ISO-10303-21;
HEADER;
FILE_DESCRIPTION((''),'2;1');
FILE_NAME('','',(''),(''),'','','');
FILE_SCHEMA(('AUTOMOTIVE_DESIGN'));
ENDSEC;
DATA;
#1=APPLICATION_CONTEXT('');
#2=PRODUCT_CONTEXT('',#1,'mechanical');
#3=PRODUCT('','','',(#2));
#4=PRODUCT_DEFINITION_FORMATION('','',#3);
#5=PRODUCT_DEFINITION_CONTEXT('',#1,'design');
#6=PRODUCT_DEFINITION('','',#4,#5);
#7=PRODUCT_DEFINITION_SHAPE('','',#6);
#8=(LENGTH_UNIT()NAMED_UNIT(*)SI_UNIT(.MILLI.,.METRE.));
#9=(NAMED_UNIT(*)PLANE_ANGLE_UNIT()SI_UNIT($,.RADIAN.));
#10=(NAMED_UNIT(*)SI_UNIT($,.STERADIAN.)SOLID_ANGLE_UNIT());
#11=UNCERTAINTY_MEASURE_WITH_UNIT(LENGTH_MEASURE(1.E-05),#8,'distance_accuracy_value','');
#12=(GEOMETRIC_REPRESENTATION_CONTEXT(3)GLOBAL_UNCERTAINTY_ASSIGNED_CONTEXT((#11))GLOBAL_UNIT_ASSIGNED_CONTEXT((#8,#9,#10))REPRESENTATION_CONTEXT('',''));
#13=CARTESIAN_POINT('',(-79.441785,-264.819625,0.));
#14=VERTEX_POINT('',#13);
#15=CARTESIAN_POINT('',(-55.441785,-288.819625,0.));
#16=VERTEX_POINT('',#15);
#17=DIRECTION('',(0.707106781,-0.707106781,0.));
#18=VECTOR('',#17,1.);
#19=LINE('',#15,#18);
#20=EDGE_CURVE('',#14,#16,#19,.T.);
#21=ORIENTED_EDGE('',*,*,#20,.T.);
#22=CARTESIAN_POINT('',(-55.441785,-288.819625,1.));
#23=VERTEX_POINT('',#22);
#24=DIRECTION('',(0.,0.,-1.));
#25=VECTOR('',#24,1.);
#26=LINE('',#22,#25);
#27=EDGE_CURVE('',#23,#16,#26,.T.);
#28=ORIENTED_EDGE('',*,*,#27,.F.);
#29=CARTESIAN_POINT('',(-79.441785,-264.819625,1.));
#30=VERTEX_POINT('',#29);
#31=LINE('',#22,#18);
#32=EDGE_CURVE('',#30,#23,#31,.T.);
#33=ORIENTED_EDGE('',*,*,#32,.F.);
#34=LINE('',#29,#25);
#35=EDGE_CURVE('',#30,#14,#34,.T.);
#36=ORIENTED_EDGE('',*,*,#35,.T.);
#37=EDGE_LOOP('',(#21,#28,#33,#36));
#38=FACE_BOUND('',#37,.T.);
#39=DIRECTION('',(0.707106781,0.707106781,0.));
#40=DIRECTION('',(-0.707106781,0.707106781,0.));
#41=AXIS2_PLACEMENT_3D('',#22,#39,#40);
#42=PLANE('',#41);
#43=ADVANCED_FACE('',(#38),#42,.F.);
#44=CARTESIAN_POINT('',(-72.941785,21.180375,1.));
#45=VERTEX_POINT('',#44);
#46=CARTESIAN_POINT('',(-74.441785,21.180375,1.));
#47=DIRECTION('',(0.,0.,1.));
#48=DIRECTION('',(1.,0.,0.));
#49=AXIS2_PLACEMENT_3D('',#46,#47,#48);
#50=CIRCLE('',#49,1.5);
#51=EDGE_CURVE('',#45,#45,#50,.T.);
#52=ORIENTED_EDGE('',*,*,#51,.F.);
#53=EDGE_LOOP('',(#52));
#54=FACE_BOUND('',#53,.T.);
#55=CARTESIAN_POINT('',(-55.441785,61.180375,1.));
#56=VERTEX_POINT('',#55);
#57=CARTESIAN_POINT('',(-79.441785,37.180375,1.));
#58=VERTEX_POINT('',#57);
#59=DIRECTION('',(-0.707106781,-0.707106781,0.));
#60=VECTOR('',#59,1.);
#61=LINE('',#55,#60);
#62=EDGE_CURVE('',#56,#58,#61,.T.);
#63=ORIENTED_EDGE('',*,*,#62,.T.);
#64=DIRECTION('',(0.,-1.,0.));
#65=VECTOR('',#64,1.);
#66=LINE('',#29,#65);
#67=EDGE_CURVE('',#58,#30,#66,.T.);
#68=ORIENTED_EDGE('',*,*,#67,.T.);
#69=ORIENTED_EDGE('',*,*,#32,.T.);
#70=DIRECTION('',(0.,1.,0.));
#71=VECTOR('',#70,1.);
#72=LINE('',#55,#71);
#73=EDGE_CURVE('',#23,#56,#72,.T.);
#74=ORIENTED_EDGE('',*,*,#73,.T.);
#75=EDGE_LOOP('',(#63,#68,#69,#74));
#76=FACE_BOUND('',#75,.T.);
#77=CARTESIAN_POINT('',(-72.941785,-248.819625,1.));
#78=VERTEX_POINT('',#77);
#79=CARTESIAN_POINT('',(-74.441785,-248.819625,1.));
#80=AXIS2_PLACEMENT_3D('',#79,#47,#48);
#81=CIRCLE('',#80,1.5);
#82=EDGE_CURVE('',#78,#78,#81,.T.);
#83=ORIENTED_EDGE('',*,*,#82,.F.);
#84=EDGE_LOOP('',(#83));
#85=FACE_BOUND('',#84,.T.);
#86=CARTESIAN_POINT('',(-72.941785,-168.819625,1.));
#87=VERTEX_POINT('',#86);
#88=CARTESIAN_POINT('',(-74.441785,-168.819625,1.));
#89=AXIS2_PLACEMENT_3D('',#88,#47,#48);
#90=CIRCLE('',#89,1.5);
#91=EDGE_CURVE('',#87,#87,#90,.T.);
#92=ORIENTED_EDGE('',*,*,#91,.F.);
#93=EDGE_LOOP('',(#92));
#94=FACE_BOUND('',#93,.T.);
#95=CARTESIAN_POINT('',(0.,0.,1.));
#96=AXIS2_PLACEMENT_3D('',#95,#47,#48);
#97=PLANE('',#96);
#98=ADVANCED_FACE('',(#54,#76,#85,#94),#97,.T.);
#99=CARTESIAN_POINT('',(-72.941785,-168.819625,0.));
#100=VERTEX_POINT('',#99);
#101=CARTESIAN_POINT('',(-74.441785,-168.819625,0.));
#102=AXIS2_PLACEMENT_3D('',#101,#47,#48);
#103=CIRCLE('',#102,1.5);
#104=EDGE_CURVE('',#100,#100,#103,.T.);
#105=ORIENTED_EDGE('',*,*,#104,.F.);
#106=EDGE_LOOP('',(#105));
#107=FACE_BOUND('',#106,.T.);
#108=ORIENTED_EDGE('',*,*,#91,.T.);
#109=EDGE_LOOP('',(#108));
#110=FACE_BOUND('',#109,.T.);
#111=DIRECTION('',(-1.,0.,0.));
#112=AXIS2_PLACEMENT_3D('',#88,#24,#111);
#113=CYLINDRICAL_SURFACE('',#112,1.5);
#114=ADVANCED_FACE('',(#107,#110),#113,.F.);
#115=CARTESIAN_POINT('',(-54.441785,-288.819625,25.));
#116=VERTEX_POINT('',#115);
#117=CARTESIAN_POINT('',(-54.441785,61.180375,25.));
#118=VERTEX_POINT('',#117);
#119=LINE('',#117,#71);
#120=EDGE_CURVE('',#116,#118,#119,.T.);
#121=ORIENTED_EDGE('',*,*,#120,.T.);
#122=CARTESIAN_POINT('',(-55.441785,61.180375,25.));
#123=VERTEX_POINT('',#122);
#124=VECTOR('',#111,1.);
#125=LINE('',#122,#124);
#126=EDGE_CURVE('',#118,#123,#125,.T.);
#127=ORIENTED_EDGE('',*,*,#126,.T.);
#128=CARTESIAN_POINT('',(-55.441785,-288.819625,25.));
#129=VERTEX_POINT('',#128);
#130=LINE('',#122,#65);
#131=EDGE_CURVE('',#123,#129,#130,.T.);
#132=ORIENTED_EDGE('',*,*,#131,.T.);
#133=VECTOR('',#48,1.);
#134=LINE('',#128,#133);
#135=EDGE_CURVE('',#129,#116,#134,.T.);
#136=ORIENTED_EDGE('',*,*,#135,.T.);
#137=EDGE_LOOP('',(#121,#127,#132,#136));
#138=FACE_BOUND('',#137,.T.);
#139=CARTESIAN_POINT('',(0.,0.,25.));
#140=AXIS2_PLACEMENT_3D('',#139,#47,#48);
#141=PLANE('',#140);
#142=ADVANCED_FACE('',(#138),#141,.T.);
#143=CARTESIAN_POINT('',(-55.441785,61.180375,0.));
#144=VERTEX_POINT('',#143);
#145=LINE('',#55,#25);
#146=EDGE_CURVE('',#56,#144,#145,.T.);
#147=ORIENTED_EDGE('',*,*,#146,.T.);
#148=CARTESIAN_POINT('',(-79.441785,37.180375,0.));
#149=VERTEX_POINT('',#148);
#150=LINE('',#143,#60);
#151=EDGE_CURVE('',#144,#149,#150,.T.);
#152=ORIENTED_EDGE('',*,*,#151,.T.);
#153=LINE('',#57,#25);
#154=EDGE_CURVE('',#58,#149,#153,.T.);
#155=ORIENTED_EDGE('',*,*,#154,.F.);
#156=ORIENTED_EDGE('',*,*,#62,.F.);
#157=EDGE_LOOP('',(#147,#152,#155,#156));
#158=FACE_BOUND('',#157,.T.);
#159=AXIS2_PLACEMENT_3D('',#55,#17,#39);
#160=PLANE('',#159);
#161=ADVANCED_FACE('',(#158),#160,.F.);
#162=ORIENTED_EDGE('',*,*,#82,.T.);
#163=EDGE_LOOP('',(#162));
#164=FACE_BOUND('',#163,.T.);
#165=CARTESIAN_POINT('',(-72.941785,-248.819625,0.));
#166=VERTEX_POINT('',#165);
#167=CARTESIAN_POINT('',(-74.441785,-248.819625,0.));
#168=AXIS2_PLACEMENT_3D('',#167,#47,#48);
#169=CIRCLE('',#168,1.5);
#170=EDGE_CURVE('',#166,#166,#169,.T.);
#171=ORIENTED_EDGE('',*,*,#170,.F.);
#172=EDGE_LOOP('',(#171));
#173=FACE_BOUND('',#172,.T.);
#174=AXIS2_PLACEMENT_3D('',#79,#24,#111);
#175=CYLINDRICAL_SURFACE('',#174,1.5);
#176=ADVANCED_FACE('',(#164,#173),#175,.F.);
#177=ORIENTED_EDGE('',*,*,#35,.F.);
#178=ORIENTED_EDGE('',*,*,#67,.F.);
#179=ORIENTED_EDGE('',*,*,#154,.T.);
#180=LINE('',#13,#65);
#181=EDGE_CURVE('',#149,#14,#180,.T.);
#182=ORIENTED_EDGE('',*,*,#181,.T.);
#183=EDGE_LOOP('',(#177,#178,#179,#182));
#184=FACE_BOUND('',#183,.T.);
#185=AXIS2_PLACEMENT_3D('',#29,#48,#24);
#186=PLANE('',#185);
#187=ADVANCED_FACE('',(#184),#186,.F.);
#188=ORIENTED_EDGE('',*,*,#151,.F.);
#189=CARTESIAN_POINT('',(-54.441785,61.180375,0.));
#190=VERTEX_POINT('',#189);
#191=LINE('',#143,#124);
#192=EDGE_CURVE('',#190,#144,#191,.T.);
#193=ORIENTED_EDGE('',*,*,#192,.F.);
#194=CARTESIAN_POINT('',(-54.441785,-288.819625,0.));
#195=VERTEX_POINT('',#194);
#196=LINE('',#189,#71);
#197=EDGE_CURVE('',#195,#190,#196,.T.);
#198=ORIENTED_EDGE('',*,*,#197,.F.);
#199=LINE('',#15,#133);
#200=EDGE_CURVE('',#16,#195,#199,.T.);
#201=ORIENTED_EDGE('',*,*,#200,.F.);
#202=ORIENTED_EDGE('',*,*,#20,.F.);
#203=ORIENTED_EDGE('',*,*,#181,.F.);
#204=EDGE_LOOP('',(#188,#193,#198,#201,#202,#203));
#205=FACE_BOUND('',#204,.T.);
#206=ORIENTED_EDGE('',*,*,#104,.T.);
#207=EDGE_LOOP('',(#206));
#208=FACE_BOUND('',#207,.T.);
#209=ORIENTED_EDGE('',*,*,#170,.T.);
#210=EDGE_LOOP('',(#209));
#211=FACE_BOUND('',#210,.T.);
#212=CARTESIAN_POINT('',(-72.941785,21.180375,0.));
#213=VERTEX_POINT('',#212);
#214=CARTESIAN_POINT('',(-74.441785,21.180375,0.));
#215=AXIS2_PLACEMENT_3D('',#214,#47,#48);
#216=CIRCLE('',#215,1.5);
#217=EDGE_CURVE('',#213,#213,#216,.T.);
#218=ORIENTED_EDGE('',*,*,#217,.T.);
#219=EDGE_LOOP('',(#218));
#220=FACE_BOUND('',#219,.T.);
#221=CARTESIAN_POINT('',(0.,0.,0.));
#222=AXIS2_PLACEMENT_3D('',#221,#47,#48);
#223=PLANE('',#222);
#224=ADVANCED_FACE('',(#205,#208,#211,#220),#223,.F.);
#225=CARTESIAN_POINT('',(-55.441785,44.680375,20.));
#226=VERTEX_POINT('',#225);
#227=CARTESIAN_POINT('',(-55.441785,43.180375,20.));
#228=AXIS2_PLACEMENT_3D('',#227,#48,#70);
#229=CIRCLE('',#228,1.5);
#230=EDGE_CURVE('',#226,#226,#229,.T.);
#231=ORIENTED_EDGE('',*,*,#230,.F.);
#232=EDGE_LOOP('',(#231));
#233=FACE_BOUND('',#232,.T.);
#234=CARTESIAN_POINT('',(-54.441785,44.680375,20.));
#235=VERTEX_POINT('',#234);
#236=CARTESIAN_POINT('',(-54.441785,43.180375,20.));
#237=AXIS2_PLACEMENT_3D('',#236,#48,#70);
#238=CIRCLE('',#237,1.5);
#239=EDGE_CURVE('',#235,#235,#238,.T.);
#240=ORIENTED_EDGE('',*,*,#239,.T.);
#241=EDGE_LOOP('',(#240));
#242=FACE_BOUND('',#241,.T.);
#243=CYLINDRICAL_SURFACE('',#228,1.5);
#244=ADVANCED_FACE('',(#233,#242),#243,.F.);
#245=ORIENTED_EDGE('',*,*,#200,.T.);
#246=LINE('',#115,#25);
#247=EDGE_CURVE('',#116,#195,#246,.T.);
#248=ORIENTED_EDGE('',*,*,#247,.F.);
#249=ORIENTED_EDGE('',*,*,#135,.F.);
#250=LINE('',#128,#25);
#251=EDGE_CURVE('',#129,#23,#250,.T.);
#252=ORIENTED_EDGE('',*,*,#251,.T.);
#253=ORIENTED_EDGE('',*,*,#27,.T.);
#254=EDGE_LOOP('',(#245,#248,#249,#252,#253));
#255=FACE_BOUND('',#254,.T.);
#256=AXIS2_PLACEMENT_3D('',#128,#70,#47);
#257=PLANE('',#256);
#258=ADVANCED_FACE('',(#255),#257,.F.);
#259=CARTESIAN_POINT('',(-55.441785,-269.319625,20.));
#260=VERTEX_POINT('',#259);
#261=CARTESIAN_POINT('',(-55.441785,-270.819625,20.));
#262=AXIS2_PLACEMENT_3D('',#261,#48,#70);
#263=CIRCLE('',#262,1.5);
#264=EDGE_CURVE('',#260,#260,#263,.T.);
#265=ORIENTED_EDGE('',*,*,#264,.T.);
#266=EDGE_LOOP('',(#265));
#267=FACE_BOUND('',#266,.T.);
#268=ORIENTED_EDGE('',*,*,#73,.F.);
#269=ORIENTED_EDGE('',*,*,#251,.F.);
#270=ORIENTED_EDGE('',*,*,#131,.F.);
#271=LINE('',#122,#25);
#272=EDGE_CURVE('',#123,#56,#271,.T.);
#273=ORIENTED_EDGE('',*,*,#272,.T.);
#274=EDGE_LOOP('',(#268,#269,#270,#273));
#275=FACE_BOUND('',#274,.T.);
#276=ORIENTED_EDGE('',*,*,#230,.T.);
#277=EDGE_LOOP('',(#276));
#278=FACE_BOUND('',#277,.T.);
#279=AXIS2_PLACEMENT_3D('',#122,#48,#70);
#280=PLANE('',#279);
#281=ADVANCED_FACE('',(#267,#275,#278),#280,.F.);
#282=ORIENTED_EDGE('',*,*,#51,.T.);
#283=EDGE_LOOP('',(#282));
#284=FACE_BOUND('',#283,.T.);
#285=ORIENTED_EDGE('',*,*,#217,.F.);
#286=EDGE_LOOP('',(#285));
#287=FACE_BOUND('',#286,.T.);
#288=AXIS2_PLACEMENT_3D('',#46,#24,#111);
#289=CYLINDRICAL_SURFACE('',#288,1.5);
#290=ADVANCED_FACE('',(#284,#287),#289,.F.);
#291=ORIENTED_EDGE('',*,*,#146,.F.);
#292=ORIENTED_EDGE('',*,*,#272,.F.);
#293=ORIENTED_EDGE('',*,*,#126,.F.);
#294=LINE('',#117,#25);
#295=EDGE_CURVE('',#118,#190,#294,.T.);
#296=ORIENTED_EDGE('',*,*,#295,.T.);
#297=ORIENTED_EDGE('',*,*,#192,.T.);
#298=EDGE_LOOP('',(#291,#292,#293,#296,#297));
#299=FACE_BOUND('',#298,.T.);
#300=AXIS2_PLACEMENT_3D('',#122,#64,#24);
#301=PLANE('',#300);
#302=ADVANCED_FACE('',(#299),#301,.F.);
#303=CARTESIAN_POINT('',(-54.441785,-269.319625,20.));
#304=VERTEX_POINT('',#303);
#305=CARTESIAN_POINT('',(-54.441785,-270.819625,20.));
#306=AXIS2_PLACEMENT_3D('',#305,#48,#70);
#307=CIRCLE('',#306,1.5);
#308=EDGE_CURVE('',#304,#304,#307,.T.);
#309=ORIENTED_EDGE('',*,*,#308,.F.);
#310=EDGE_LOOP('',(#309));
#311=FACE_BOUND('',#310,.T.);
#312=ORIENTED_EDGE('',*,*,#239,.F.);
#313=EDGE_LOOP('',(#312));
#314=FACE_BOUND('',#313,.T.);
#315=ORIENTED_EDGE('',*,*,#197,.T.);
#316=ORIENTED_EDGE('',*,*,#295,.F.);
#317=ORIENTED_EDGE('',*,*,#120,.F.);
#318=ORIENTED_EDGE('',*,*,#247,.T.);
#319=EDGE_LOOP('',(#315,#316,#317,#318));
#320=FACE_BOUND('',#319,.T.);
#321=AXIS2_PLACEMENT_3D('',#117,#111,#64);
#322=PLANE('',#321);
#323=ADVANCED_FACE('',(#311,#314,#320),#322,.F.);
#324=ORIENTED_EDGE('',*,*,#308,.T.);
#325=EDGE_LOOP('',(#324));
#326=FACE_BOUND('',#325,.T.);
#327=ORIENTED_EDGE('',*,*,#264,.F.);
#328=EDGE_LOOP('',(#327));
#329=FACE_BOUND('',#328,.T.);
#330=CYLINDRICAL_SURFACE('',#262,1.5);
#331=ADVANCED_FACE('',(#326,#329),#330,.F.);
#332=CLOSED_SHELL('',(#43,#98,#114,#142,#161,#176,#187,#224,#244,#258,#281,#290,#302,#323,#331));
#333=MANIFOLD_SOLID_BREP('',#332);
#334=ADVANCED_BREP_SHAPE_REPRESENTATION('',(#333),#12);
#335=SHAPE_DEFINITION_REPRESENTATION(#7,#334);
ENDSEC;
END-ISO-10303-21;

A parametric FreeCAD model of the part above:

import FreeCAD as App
import Part
import Sketcher

V = App.Vector


def add_polygon(sketch, points):
    """Adds a closed chain of lines whose ends are joined by coincident constraints."""
    first, n = sketch.GeometryCount, len(points)
    for a, b in zip(points, points[1:] + points[:1]):
        sketch.addGeometry(Part.LineSegment(App.Vector(*a, 0), App.Vector(*b, 0)), False)
    for i in range(n):
        sketch.addConstraint(Sketcher.Constraint("Coincident", first + i, 2, first + (i + 1) % n, 1))

doc = App.newDocument("Part")
body = doc.addObject("PartDesign::Body", "Body")

# Sketch on XY plane
sketch1 = body.newObject("Sketcher::SketchObject", "Sketch")
sketch1.AttachmentSupport = (doc.getObject("XY_Plane"), [""])
sketch1.MapMode = "FlatFace"
add_polygon(sketch1, [(-55.4, 61.2), (-55.4, -288.8), (-54.4, -288.8), (-54.4, 61.2)])  # lines 0-3
sketch1.addConstraint([
    Sketcher.Constraint("Vertical", 0),
    Sketcher.Constraint("Horizontal", 1),
    Sketcher.Constraint("Vertical", 2),
    Sketcher.Constraint("Horizontal", 3),
    Sketcher.Constraint("DistanceX", 1, 1, 1, 2, 1.0),
    Sketcher.Constraint("DistanceY", 0, 2, 0, 1, 350.0),
    Sketcher.Constraint("DistanceX", 0, 2, -1, 1, 55.441785),
    Sketcher.Constraint("DistanceY", 0, 2, -1, 1, 288.819625),
])
pad1 = body.newObject("PartDesign::Pad", "Pad")
pad1.Profile = sketch1
pad1.Length = 25

# Sketch on YZ plane
sketch2 = body.newObject("Sketcher::SketchObject", "Sketch001")
sketch2.AttachmentSupport = (doc.getObject("YZ_Plane"), [""])
sketch2.MapMode = "FlatFace"
sketch2.AttachmentOffset = App.Placement(V(0, 0, -54.441785), App.Rotation())
sketch2.addGeometry([
    Part.Circle(V(43.2, 20, 0), V(0, 0, 1), 1.5),
    Part.Circle(V(-270.8, 20, 0), V(0, 0, 1), 1.5),
], False)
sketch2.addConstraint([
    Sketcher.Constraint("Equal", 0, 1),
    Sketcher.Constraint("Horizontal", 0, 3, 1, 3),
    Sketcher.Constraint("Diameter", 0, 3.0),
    Sketcher.Constraint("DistanceY", -1, 1, 0, 3, 20.0),
    Sketcher.Constraint("DistanceX", 1, 3, 0, 3, 314.0),
    Sketcher.Constraint("DistanceX", -1, 1, 0, 3, 43.180375),
])
pocket1 = body.newObject("PartDesign::Pocket", "Pocket")
pocket1.Profile = sketch2
pocket1.Length = 1

# Sketch on XY plane
sketch3 = body.newObject("Sketcher::SketchObject", "Sketch002")
sketch3.AttachmentSupport = (doc.getObject("XY_Plane"), [""])
sketch3.MapMode = "FlatFace"
add_polygon(sketch3, [(-55.4, 61.2), (-79.4, 37.2), (-79.4, -264.8), (-55.4, -288.8)])  # lines 0-3
sketch3.addGeometry(Part.Circle(V(-74.4, -248.8, 0), V(0, 0, 1), 1.5), False)  # 4
sketch3.addGeometry(Part.Circle(V(-74.4, -168.8, 0), V(0, 0, 1), 1.5), False)  # 5
sketch3.addGeometry(Part.Circle(V(-74.4, 21.2, 0), V(0, 0, 1), 1.5), False)  # 6
sketch3.addConstraint([
    Sketcher.Constraint("Vertical", 1),
    Sketcher.Constraint("Vertical", 3),
    Sketcher.Constraint("Equal", 4, 5),
    Sketcher.Constraint("Equal", 5, 6),
    Sketcher.Constraint("Perpendicular", 0, 2),
    Sketcher.Constraint("Vertical", 4, 3, 5, 3),
    Sketcher.Constraint("Vertical", 5, 3, 6, 3),
    Sketcher.Constraint("Equal", 0, 2),
    Sketcher.Constraint("Diameter", 4, 3.0),
    Sketcher.Constraint("DistanceY", 1, 2, 1, 1, 302.0),
    Sketcher.Constraint("DistanceY", 3, 1, 3, 2, 350.0),
    Sketcher.Constraint("DistanceY", 4, 3, 5, 3, 80.0),
    Sketcher.Constraint("DistanceY", 5, 3, 6, 3, 190.0),
    Sketcher.Constraint("DistanceX", 0, 2, 6, 3, 5.0),
    Sketcher.Constraint("DistanceY", 6, 3, 0, 2, 16.0),
    Sketcher.Constraint("DistanceX", 4, 3, -1, 1, 74.441785),
    Sketcher.Constraint("DistanceY", 4, 3, -1, 1, 248.819625),
])
pad2 = body.newObject("PartDesign::Pad", "Pad001")
pad2.Profile = sketch3
pad2.Length = 1

doc.recompute()
